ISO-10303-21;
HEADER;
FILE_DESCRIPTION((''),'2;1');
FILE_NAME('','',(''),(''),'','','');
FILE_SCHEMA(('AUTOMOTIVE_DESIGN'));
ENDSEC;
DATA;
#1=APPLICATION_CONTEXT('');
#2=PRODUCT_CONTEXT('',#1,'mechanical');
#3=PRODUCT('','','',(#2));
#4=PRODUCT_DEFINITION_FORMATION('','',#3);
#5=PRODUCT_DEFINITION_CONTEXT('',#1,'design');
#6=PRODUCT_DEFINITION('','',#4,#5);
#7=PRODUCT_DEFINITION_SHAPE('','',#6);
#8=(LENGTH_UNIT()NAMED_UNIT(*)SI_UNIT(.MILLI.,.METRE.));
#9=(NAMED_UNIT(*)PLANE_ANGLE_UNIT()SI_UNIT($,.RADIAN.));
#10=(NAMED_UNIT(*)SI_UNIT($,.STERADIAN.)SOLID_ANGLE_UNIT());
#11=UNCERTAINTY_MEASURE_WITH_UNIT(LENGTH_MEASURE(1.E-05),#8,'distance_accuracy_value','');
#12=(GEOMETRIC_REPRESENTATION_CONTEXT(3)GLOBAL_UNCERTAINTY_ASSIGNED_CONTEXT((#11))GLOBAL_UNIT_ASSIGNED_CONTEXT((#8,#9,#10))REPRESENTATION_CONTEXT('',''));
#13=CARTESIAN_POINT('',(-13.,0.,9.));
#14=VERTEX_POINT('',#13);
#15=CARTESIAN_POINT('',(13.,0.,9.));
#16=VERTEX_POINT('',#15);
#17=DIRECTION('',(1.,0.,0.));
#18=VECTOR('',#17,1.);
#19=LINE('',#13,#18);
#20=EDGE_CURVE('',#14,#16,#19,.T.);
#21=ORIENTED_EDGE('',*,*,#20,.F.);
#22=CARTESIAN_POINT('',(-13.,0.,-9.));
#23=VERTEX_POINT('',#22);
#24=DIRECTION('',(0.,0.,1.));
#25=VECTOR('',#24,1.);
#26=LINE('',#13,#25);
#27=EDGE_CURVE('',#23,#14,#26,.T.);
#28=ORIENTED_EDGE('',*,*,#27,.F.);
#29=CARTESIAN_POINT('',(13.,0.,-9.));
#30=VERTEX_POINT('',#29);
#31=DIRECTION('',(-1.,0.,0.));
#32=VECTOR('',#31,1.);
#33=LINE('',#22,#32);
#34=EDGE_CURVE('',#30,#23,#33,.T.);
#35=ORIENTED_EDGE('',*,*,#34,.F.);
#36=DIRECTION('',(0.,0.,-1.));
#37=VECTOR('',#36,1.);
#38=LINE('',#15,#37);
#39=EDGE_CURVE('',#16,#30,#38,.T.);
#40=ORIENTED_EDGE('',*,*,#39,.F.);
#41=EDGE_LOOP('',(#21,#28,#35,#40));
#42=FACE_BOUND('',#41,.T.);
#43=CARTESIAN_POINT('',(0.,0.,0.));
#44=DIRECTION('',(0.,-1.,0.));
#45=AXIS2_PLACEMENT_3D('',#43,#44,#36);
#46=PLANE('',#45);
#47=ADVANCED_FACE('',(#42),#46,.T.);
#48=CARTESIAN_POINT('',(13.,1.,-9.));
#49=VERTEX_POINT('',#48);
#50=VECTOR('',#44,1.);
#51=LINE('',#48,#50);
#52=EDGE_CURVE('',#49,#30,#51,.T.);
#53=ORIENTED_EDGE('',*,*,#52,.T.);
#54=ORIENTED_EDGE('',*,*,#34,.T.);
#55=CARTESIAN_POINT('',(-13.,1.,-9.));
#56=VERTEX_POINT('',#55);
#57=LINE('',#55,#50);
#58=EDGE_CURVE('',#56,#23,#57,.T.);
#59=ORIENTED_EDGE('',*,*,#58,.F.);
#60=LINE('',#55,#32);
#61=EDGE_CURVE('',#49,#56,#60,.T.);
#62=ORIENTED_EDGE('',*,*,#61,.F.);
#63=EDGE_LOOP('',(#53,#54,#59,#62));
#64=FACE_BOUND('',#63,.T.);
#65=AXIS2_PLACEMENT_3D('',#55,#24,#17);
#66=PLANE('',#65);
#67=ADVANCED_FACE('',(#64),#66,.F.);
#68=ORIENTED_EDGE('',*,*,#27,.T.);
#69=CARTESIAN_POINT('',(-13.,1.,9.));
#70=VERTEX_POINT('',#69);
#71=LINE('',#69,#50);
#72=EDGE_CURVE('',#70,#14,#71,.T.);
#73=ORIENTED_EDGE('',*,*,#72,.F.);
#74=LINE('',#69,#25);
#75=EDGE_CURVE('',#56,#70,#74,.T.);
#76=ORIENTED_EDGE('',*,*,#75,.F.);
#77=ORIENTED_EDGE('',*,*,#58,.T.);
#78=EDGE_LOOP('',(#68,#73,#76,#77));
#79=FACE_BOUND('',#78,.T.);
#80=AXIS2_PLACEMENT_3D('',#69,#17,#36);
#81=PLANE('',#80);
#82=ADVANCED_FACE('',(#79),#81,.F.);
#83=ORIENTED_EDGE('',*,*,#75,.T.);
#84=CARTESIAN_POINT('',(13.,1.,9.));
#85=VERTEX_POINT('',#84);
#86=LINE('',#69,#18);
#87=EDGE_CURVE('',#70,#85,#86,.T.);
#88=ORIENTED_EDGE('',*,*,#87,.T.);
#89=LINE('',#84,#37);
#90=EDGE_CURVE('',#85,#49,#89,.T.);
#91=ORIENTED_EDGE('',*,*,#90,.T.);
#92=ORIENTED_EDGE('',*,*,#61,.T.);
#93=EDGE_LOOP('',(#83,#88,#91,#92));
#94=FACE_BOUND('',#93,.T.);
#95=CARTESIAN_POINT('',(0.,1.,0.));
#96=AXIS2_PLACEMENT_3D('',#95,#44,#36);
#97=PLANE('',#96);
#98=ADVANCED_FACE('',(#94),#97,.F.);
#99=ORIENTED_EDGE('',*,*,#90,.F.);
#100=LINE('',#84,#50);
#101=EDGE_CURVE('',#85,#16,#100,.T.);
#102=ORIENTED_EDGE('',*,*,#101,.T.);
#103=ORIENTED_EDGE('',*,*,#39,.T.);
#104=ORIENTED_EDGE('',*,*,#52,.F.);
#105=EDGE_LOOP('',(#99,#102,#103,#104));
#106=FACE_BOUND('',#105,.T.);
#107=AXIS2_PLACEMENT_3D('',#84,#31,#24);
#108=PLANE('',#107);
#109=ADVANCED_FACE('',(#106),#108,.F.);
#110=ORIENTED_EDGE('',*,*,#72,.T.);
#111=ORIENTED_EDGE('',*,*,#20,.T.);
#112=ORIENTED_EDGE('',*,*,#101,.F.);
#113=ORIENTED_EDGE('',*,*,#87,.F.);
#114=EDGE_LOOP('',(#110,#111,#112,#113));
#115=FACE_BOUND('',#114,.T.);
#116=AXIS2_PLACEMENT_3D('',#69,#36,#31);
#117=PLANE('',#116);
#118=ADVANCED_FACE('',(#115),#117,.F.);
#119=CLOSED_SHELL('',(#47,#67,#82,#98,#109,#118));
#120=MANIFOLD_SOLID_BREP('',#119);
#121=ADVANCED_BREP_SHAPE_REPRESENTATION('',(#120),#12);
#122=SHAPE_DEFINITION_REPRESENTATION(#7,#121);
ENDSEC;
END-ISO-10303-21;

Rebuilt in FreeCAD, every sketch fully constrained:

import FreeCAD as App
import Part
import Sketcher
from FreeCAD import Vector
Q = App.Units.Quantity


def add_polygon(sketch, points):
    """Adds a closed chain of lines whose ends are joined by coincident constraints."""
    first, n = sketch.GeometryCount, len(points)
    for a, b in zip(points, points[1:] + points[:1]):
        sketch.addGeometry(Part.LineSegment(App.Vector(*a, 0), App.Vector(*b, 0)), False)
    for i in range(n):
        sketch.addConstraint(Sketcher.Constraint("Coincident", first + i, 2, first + (i + 1) % n, 1))

doc = App.newDocument("Part")
body = doc.addObject("PartDesign::Body", "Body")

sketch1 = doc.addObject("Sketcher::SketchObject", "Sketch")
body.addObject(sketch1)
sketch1.AttachmentSupport = (doc.XZ_Plane, [""])
sketch1.MapMode = "FlatFace"
add_polygon(sketch1, [(-13, -9), (-13, 9), (13, 9), (13, -9)])
sketch1.addConstraint([
    Sketcher.Constraint("Vertical", 0),
    Sketcher.Constraint("Horizontal", 1),
    Sketcher.Constraint("Vertical", 2),
    Sketcher.Constraint("Horizontal", 3),
    Sketcher.Constraint("Symmetric", 0, 2, 2, 2, -1, 1),
    Sketcher.Constraint("DistanceX", 1, 1, 1, 2, Q("26 mm")),
    Sketcher.Constraint("DistanceY", 0, 1, 0, 2, Q("18 mm")),
])
pad1 = doc.addObject("PartDesign::Pad", "Pad")
body.addObject(pad1)
pad1.Profile = sketch1
pad1.Length = 1
pad1.Reversed = True

doc.recompute()
